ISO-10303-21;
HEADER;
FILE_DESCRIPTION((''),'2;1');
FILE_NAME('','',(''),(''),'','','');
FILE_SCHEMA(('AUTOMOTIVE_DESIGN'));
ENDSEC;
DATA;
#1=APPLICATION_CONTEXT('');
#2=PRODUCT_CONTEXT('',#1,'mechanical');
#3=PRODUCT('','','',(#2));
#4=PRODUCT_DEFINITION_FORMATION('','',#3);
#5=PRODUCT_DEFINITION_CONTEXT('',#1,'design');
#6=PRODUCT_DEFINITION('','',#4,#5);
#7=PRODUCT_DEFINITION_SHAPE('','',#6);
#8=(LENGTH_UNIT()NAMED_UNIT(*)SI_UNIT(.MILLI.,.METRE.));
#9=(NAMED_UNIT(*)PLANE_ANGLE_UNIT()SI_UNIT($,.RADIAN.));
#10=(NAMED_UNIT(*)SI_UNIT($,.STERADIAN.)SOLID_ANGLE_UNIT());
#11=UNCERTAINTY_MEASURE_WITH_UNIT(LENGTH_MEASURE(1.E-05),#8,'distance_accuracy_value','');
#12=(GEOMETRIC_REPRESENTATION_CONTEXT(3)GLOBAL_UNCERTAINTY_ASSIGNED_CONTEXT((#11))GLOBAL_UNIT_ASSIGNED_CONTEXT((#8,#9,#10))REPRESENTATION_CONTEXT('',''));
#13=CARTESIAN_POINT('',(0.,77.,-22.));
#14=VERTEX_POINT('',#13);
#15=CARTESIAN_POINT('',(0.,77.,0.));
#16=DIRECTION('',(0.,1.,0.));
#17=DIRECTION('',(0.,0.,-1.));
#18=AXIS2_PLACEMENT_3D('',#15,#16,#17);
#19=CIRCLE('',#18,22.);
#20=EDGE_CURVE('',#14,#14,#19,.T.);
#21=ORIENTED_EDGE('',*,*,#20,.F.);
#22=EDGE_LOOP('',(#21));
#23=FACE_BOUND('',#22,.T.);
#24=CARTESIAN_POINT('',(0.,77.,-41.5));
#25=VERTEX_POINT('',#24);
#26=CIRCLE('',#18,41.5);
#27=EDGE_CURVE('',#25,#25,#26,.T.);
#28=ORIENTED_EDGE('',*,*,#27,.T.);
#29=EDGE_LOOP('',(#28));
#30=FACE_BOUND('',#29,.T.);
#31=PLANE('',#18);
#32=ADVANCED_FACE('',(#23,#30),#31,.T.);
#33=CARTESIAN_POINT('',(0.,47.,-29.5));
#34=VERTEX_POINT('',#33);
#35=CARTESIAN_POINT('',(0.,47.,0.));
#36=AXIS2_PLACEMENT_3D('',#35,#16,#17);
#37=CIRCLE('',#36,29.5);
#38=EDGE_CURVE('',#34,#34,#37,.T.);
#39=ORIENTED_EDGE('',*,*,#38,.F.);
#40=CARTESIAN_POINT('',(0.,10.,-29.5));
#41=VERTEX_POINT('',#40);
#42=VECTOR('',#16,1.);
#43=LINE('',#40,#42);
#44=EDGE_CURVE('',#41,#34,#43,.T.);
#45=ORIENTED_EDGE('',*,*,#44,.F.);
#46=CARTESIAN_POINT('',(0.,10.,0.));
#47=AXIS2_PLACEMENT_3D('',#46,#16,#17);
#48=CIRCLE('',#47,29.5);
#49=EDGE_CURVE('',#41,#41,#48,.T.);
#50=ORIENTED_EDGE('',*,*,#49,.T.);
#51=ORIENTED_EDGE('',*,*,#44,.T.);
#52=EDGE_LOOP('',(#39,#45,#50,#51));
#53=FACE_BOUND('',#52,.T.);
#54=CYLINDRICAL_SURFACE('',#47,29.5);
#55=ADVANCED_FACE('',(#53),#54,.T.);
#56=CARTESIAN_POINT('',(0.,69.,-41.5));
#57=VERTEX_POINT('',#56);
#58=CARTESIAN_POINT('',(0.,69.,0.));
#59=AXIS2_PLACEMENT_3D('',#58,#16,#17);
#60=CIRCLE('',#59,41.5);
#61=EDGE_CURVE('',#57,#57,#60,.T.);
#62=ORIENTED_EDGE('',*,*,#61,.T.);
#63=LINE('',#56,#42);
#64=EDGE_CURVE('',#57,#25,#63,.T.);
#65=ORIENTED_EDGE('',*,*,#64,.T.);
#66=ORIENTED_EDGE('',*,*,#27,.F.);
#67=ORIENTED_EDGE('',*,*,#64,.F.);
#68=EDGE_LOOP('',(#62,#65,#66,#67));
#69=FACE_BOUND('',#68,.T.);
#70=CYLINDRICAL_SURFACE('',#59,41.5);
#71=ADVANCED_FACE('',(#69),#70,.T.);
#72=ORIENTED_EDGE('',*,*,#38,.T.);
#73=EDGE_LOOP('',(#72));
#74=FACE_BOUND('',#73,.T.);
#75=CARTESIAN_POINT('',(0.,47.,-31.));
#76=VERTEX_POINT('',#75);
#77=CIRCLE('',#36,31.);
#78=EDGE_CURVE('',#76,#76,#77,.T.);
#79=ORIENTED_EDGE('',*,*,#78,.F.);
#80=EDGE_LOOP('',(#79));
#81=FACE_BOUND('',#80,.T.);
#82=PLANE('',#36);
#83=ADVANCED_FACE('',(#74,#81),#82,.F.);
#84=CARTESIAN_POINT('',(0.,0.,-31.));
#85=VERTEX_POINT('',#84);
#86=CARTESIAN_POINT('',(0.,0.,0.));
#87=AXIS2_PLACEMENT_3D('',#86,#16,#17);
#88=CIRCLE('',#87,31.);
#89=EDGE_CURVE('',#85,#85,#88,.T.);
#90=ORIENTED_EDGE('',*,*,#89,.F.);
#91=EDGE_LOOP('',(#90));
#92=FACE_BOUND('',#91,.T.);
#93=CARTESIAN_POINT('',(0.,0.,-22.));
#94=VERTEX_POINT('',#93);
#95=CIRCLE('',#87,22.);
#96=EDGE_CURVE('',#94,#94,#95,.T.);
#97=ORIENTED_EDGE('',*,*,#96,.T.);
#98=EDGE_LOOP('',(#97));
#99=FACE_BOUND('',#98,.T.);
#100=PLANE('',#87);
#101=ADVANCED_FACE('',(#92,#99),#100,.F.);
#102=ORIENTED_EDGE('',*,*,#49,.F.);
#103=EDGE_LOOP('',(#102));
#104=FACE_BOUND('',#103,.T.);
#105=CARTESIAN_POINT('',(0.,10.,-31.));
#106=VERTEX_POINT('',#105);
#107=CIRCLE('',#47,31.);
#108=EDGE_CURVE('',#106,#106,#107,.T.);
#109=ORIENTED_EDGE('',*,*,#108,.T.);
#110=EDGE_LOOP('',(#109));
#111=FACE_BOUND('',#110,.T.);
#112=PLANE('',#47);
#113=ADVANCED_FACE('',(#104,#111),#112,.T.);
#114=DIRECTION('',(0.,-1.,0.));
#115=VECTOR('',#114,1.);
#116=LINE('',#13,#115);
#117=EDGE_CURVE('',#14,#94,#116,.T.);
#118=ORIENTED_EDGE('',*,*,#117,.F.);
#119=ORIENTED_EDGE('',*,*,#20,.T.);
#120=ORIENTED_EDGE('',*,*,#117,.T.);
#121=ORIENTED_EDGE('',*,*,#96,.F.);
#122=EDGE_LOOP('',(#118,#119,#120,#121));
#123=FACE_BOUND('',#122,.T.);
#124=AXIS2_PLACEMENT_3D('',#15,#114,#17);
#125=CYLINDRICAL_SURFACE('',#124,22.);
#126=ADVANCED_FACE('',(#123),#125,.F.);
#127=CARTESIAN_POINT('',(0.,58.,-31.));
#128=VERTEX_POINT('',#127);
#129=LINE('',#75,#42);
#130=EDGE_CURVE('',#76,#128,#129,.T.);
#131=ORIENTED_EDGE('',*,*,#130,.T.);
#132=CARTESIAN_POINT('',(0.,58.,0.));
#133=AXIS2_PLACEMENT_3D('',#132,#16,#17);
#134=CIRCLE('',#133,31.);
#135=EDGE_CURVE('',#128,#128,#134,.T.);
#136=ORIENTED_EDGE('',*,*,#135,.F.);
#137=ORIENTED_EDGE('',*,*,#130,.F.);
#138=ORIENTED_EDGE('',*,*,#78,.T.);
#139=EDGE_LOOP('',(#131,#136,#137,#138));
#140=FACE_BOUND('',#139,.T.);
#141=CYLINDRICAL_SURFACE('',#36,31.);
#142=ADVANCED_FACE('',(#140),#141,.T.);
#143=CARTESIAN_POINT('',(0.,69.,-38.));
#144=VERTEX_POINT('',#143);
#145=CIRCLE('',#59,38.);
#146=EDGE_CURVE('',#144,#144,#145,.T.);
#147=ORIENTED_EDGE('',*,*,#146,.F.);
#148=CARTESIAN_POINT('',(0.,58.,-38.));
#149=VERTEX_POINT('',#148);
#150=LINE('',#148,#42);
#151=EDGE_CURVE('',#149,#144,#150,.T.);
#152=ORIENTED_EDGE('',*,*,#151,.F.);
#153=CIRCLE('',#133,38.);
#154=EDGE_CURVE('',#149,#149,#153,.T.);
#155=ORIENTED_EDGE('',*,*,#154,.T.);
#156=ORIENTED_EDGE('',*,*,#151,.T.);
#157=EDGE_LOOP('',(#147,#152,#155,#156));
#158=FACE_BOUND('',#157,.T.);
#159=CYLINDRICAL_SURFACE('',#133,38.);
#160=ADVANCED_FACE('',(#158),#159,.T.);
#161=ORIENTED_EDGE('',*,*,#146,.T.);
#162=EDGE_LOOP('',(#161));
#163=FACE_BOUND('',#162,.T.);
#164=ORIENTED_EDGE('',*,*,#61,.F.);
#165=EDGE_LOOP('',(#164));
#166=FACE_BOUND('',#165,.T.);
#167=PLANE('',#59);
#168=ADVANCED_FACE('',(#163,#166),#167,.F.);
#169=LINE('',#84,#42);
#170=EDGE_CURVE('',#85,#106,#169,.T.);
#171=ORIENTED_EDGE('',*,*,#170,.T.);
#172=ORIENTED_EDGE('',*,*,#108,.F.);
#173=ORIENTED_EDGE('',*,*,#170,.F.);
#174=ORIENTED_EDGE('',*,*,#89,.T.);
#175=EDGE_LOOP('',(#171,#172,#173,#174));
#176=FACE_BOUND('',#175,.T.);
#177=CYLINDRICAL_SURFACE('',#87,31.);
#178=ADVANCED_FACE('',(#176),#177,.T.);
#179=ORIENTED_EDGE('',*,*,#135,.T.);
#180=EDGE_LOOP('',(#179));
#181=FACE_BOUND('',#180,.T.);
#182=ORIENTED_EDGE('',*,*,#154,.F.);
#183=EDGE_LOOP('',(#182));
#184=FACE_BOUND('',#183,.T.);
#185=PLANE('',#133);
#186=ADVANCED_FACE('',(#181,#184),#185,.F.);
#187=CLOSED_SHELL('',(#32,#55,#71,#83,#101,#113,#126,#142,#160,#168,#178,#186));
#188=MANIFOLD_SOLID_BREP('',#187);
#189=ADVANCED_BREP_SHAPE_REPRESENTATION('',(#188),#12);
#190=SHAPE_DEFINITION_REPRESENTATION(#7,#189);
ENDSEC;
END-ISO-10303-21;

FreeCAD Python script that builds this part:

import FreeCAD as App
import Part
import Sketcher

V = App.Vector
Q = App.Units.Quantity


def add_polygon(sketch, points):
    """Adds a closed chain of lines whose ends are joined by coincident constraints."""
    first, n = sketch.GeometryCount, len(points)
    for a, b in zip(points, points[1:] + points[:1]):
        sketch.addGeometry(Part.LineSegment(App.Vector(*a, 0), App.Vector(*b, 0)), False)
    for i in range(n):
        sketch.addConstraint(Sketcher.Constraint("Coincident", first + i, 2, first + (i + 1) % n, 1))

doc = App.newDocument("Part")
body = doc.addObject("PartDesign::Body", "Body")

sketch1 = body.newObject("Sketcher::SketchObject", "Sketch")
sketch1.AttachmentSupport = (doc.getObject("XY_Plane"), [""])
sketch1.MapMode = "FlatFace"
add_polygon(sketch1, [(22, 0), (31, 0), (31, 10), (29.5, 10), (29.5, 47), (31, 47), (31, 58), (38, 58), (38, 69), (41.5, 69), (41.5, 77), (22, 77)])
sketch1.addConstraint(Sketcher.Constraint("Horizontal", 0))
sketch1.addConstraint(Sketcher.Constraint("Vertical", 1))
sketch1.addConstraint(Sketcher.Constraint("Horizontal", 2))
sketch1.addConstraint(Sketcher.Constraint("Vertical", 3))
sketch1.addConstraint(Sketcher.Constraint("Horizontal", 4))
sketch1.addConstraint(Sketcher.Constraint("Vertical", 5))
sketch1.addConstraint(Sketcher.Constraint("Horizontal", 6))
sketch1.addConstraint(Sketcher.Constraint("Vertical", 7))
sketch1.addConstraint(Sketcher.Constraint("Horizontal", 8))
sketch1.addConstraint(Sketcher.Constraint("Vertical", 9))
sketch1.addConstraint(Sketcher.Constraint("Horizontal", 10))
sketch1.addConstraint(Sketcher.Constraint("Vertical", 11))
sketch1.addConstraint(Sketcher.Constraint("PointOnObject", 0, 2, -1))
sketch1.addConstraint(Sketcher.Constraint("Vertical", 1, 2, 4, 2))
sketch1.addConstraint(Sketcher.Constraint("Equal", 5, 7))
sketch1.addConstraint(Sketcher.Constraint("DistanceX", 0, 1, 0, 2, Q("9 mm")))
sketch1.addConstraint(Sketcher.Constraint("DistanceX", 6, 1, 6, 2, Q("7 mm")))
sketch1.addConstraint(Sketcher.Constraint("DistanceY", 1, 1, 1, 2, Q("10 mm")))
sketch1.addConstraint(Sketcher.Constraint("DistanceY", 3, 1, 3, 2, Q("37 mm")))
sketch1.addConstraint(Sketcher.Constraint("DistanceY", 5, 1, 5, 2, Q("11 mm")))
sketch1.addConstraint(Sketcher.Constraint("DistanceY", 9, 1, 9, 2, Q("8 mm")))
sketch1.addConstraint(Sketcher.Constraint("DistanceX", 2, 2, 2, 1, Q("1.5 mm")))
sketch1.addConstraint(Sketcher.Constraint("DistanceX", 8, 1, 8, 2, Q("3.5 mm")))
sketch1.addConstraint(Sketcher.Constraint("DistanceX", -1, 1, 0, 2, Q("31 mm")))
revolution = body.newObject("PartDesign::Revolution", "Revolution")
revolution.Profile = sketch1
revolution.ReferenceAxis = (sketch1, ["V_Axis"])
revolution.Angle = 360

doc.recompute()
